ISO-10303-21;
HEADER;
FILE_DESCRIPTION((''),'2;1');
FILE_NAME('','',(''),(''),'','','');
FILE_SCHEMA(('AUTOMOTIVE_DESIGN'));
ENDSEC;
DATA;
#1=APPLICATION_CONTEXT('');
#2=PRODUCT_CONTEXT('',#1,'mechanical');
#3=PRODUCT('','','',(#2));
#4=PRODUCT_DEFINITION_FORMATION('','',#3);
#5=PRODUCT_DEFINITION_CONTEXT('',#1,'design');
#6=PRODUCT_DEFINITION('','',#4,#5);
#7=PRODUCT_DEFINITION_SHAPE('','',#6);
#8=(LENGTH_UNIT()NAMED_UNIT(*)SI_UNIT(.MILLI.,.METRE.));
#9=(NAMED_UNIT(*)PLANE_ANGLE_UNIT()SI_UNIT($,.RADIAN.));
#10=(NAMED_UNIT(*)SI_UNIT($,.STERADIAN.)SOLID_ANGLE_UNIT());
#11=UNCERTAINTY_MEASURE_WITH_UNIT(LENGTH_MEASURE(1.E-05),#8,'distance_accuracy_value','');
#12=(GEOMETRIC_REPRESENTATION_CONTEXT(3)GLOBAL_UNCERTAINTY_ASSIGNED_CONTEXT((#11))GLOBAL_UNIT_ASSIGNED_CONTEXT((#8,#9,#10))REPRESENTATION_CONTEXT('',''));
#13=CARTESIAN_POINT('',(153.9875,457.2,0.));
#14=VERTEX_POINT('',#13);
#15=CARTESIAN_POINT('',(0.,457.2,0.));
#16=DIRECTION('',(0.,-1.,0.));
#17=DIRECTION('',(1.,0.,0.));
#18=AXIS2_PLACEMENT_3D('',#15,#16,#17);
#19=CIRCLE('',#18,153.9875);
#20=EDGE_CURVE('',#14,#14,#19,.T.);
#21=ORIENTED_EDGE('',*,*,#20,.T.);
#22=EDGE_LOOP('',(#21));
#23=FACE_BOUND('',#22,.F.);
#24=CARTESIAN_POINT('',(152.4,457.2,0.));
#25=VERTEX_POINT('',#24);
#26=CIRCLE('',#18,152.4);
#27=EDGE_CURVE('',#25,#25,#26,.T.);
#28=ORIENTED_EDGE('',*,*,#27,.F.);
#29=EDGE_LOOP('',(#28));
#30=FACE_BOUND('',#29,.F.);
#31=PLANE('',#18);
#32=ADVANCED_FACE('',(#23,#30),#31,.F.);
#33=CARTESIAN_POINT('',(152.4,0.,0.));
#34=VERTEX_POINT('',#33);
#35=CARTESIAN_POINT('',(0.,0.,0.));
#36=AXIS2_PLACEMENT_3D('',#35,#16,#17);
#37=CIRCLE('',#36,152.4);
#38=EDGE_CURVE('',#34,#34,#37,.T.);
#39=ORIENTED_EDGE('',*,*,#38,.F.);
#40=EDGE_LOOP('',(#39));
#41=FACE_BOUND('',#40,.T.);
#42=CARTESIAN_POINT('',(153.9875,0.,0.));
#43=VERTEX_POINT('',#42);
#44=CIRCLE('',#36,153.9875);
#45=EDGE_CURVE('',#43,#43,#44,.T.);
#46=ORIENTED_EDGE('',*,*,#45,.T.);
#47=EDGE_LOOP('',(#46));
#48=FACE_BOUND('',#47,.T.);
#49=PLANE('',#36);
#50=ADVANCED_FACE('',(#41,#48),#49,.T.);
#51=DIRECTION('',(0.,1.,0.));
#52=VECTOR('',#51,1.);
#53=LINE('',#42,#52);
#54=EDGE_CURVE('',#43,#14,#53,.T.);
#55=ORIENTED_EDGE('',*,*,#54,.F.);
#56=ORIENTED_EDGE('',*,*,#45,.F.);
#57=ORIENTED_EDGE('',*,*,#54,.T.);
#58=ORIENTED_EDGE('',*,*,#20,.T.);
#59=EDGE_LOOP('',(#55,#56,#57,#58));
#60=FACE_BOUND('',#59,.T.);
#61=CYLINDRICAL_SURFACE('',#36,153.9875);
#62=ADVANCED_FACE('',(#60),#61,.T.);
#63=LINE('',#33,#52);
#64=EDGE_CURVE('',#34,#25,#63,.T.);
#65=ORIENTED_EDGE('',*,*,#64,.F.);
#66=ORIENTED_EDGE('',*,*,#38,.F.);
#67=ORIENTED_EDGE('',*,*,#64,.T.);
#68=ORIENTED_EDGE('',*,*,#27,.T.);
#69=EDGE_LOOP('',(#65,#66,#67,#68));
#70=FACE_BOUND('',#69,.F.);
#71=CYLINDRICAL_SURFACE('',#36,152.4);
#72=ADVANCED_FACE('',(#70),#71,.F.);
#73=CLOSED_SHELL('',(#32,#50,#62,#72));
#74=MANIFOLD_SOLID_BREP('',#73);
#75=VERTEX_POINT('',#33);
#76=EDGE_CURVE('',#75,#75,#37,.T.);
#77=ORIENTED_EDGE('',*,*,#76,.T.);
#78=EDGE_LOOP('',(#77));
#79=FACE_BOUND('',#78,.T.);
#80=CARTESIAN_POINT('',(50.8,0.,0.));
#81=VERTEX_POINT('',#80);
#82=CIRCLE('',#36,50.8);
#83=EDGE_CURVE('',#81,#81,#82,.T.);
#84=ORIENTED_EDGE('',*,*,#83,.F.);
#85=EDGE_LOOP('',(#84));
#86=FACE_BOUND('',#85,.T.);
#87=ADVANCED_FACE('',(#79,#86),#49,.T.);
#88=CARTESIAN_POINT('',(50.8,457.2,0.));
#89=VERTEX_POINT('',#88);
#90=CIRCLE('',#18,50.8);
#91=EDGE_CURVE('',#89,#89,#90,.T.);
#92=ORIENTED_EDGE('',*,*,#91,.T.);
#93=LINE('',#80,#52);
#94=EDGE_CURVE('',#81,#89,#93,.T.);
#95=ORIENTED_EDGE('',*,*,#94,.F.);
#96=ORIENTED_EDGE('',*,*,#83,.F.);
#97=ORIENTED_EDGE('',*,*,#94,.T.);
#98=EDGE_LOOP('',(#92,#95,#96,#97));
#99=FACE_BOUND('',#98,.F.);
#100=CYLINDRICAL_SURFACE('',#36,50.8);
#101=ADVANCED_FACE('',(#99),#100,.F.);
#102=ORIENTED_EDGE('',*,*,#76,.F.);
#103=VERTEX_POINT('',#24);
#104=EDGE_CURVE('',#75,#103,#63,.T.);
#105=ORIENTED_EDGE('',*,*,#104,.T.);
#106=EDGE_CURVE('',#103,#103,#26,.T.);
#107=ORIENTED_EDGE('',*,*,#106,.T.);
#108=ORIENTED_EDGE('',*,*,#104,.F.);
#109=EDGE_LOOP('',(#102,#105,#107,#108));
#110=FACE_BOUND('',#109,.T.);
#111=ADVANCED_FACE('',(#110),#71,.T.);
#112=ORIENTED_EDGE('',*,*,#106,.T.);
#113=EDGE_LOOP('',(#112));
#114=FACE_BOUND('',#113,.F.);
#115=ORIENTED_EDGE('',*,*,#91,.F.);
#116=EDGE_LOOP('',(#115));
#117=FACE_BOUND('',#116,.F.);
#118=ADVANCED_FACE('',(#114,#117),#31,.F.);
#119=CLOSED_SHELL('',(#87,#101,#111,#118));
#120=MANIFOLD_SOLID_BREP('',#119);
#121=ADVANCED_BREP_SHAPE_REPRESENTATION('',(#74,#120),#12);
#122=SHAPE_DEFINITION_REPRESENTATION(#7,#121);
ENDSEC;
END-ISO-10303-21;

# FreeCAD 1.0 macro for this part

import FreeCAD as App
import Part
import Sketcher
from FreeCAD import Vector
Q = App.Units.Quantity

doc = App.newDocument("Part")
params = doc.addObject("Spreadsheet::Sheet", "Params")
for row, (alias, value) in enumerate([
    ("sketch1_diameter", "12 in"),
    ("sketch1_diameter2", "12.125 in"),
    ("pad1_length", "18 in"),
    ("sketch2_diameter", "12 in"),
    ("sketch2_diameter2", "4 in"),
    ("pad2_length", "18 in"),
], start=1):
    params.set(f"A{row}", alias)
    params.set(f"B{row}", "=" + value)
    params.setAlias(f"B{row}", alias)

body = doc.addObject("PartDesign::Body", "Body")

# Sketch on XZ plane
sketch1 = doc.addObject("Sketcher::SketchObject", "Sketch")
body.addObject(sketch1)
sketch1.AttachmentSupport = (doc.XZ_Plane, [""])
sketch1.MapMode = "FlatFace"
sketch1.addGeometry([
    Part.Circle(Vector(0, 0, 0), Vector(0, 0, 1), 154),
    Part.Circle(Vector(0, 0, 0), Vector(0, 0, 1), 152),
], False)
sketch1.addConstraint([
    Sketcher.Constraint("Coincident", 0, 3, -1, 1),
    Sketcher.Constraint("Coincident", 1, 3, -1, 1),
    Sketcher.Constraint("Diameter", 1, Q("12 in")),
    Sketcher.Constraint("Diameter", 0, Q("12.125 in")),
])
sketch1.setExpression("Constraints[2]", "Params.sketch1_diameter")
sketch1.setExpression("Constraints[3]", "Params.sketch1_diameter2")
pad1 = doc.addObject("PartDesign::Pad", "Pad")
body.addObject(pad1)
pad1.Profile = sketch1
pad1.setExpression("Length", "Params.pad1_length")
pad1.Reversed = True
body2 = doc.addObject("PartDesign::Body", "Body001")

# Sketch on XZ plane
sketch2 = doc.addObject("Sketcher::SketchObject", "Sketch001")
body2.addObject(sketch2)
sketch2.AttachmentSupport = (doc.getObject("XZ_Plane001"), [""])
sketch2.MapMode = "FlatFace"
sketch2.addGeometry([
    Part.Circle(Vector(0, 0, 0), Vector(0, 0, 1), 152),
    Part.Circle(Vector(0, 0, 0), Vector(0, 0, 1), 51),
], False)
sketch2.addConstraint([
    Sketcher.Constraint("Coincident", 0, 3, -1, 1),
    Sketcher.Constraint("Coincident", 1, 3, -1, 1),
    Sketcher.Constraint("Diameter", 0, Q("12 in")),
    Sketcher.Constraint("Diameter", 1, Q("4 in")),
])
sketch2.setExpression("Constraints[2]", "Params.sketch2_diameter")
sketch2.setExpression("Constraints[3]", "Params.sketch2_diameter2")
pad2 = doc.addObject("PartDesign::Pad", "Pad001")
body2.addObject(pad2)
pad2.Profile = sketch2
pad2.setExpression("Length", "Params.pad2_length")
pad2.Reversed = True

doc.recompute()
